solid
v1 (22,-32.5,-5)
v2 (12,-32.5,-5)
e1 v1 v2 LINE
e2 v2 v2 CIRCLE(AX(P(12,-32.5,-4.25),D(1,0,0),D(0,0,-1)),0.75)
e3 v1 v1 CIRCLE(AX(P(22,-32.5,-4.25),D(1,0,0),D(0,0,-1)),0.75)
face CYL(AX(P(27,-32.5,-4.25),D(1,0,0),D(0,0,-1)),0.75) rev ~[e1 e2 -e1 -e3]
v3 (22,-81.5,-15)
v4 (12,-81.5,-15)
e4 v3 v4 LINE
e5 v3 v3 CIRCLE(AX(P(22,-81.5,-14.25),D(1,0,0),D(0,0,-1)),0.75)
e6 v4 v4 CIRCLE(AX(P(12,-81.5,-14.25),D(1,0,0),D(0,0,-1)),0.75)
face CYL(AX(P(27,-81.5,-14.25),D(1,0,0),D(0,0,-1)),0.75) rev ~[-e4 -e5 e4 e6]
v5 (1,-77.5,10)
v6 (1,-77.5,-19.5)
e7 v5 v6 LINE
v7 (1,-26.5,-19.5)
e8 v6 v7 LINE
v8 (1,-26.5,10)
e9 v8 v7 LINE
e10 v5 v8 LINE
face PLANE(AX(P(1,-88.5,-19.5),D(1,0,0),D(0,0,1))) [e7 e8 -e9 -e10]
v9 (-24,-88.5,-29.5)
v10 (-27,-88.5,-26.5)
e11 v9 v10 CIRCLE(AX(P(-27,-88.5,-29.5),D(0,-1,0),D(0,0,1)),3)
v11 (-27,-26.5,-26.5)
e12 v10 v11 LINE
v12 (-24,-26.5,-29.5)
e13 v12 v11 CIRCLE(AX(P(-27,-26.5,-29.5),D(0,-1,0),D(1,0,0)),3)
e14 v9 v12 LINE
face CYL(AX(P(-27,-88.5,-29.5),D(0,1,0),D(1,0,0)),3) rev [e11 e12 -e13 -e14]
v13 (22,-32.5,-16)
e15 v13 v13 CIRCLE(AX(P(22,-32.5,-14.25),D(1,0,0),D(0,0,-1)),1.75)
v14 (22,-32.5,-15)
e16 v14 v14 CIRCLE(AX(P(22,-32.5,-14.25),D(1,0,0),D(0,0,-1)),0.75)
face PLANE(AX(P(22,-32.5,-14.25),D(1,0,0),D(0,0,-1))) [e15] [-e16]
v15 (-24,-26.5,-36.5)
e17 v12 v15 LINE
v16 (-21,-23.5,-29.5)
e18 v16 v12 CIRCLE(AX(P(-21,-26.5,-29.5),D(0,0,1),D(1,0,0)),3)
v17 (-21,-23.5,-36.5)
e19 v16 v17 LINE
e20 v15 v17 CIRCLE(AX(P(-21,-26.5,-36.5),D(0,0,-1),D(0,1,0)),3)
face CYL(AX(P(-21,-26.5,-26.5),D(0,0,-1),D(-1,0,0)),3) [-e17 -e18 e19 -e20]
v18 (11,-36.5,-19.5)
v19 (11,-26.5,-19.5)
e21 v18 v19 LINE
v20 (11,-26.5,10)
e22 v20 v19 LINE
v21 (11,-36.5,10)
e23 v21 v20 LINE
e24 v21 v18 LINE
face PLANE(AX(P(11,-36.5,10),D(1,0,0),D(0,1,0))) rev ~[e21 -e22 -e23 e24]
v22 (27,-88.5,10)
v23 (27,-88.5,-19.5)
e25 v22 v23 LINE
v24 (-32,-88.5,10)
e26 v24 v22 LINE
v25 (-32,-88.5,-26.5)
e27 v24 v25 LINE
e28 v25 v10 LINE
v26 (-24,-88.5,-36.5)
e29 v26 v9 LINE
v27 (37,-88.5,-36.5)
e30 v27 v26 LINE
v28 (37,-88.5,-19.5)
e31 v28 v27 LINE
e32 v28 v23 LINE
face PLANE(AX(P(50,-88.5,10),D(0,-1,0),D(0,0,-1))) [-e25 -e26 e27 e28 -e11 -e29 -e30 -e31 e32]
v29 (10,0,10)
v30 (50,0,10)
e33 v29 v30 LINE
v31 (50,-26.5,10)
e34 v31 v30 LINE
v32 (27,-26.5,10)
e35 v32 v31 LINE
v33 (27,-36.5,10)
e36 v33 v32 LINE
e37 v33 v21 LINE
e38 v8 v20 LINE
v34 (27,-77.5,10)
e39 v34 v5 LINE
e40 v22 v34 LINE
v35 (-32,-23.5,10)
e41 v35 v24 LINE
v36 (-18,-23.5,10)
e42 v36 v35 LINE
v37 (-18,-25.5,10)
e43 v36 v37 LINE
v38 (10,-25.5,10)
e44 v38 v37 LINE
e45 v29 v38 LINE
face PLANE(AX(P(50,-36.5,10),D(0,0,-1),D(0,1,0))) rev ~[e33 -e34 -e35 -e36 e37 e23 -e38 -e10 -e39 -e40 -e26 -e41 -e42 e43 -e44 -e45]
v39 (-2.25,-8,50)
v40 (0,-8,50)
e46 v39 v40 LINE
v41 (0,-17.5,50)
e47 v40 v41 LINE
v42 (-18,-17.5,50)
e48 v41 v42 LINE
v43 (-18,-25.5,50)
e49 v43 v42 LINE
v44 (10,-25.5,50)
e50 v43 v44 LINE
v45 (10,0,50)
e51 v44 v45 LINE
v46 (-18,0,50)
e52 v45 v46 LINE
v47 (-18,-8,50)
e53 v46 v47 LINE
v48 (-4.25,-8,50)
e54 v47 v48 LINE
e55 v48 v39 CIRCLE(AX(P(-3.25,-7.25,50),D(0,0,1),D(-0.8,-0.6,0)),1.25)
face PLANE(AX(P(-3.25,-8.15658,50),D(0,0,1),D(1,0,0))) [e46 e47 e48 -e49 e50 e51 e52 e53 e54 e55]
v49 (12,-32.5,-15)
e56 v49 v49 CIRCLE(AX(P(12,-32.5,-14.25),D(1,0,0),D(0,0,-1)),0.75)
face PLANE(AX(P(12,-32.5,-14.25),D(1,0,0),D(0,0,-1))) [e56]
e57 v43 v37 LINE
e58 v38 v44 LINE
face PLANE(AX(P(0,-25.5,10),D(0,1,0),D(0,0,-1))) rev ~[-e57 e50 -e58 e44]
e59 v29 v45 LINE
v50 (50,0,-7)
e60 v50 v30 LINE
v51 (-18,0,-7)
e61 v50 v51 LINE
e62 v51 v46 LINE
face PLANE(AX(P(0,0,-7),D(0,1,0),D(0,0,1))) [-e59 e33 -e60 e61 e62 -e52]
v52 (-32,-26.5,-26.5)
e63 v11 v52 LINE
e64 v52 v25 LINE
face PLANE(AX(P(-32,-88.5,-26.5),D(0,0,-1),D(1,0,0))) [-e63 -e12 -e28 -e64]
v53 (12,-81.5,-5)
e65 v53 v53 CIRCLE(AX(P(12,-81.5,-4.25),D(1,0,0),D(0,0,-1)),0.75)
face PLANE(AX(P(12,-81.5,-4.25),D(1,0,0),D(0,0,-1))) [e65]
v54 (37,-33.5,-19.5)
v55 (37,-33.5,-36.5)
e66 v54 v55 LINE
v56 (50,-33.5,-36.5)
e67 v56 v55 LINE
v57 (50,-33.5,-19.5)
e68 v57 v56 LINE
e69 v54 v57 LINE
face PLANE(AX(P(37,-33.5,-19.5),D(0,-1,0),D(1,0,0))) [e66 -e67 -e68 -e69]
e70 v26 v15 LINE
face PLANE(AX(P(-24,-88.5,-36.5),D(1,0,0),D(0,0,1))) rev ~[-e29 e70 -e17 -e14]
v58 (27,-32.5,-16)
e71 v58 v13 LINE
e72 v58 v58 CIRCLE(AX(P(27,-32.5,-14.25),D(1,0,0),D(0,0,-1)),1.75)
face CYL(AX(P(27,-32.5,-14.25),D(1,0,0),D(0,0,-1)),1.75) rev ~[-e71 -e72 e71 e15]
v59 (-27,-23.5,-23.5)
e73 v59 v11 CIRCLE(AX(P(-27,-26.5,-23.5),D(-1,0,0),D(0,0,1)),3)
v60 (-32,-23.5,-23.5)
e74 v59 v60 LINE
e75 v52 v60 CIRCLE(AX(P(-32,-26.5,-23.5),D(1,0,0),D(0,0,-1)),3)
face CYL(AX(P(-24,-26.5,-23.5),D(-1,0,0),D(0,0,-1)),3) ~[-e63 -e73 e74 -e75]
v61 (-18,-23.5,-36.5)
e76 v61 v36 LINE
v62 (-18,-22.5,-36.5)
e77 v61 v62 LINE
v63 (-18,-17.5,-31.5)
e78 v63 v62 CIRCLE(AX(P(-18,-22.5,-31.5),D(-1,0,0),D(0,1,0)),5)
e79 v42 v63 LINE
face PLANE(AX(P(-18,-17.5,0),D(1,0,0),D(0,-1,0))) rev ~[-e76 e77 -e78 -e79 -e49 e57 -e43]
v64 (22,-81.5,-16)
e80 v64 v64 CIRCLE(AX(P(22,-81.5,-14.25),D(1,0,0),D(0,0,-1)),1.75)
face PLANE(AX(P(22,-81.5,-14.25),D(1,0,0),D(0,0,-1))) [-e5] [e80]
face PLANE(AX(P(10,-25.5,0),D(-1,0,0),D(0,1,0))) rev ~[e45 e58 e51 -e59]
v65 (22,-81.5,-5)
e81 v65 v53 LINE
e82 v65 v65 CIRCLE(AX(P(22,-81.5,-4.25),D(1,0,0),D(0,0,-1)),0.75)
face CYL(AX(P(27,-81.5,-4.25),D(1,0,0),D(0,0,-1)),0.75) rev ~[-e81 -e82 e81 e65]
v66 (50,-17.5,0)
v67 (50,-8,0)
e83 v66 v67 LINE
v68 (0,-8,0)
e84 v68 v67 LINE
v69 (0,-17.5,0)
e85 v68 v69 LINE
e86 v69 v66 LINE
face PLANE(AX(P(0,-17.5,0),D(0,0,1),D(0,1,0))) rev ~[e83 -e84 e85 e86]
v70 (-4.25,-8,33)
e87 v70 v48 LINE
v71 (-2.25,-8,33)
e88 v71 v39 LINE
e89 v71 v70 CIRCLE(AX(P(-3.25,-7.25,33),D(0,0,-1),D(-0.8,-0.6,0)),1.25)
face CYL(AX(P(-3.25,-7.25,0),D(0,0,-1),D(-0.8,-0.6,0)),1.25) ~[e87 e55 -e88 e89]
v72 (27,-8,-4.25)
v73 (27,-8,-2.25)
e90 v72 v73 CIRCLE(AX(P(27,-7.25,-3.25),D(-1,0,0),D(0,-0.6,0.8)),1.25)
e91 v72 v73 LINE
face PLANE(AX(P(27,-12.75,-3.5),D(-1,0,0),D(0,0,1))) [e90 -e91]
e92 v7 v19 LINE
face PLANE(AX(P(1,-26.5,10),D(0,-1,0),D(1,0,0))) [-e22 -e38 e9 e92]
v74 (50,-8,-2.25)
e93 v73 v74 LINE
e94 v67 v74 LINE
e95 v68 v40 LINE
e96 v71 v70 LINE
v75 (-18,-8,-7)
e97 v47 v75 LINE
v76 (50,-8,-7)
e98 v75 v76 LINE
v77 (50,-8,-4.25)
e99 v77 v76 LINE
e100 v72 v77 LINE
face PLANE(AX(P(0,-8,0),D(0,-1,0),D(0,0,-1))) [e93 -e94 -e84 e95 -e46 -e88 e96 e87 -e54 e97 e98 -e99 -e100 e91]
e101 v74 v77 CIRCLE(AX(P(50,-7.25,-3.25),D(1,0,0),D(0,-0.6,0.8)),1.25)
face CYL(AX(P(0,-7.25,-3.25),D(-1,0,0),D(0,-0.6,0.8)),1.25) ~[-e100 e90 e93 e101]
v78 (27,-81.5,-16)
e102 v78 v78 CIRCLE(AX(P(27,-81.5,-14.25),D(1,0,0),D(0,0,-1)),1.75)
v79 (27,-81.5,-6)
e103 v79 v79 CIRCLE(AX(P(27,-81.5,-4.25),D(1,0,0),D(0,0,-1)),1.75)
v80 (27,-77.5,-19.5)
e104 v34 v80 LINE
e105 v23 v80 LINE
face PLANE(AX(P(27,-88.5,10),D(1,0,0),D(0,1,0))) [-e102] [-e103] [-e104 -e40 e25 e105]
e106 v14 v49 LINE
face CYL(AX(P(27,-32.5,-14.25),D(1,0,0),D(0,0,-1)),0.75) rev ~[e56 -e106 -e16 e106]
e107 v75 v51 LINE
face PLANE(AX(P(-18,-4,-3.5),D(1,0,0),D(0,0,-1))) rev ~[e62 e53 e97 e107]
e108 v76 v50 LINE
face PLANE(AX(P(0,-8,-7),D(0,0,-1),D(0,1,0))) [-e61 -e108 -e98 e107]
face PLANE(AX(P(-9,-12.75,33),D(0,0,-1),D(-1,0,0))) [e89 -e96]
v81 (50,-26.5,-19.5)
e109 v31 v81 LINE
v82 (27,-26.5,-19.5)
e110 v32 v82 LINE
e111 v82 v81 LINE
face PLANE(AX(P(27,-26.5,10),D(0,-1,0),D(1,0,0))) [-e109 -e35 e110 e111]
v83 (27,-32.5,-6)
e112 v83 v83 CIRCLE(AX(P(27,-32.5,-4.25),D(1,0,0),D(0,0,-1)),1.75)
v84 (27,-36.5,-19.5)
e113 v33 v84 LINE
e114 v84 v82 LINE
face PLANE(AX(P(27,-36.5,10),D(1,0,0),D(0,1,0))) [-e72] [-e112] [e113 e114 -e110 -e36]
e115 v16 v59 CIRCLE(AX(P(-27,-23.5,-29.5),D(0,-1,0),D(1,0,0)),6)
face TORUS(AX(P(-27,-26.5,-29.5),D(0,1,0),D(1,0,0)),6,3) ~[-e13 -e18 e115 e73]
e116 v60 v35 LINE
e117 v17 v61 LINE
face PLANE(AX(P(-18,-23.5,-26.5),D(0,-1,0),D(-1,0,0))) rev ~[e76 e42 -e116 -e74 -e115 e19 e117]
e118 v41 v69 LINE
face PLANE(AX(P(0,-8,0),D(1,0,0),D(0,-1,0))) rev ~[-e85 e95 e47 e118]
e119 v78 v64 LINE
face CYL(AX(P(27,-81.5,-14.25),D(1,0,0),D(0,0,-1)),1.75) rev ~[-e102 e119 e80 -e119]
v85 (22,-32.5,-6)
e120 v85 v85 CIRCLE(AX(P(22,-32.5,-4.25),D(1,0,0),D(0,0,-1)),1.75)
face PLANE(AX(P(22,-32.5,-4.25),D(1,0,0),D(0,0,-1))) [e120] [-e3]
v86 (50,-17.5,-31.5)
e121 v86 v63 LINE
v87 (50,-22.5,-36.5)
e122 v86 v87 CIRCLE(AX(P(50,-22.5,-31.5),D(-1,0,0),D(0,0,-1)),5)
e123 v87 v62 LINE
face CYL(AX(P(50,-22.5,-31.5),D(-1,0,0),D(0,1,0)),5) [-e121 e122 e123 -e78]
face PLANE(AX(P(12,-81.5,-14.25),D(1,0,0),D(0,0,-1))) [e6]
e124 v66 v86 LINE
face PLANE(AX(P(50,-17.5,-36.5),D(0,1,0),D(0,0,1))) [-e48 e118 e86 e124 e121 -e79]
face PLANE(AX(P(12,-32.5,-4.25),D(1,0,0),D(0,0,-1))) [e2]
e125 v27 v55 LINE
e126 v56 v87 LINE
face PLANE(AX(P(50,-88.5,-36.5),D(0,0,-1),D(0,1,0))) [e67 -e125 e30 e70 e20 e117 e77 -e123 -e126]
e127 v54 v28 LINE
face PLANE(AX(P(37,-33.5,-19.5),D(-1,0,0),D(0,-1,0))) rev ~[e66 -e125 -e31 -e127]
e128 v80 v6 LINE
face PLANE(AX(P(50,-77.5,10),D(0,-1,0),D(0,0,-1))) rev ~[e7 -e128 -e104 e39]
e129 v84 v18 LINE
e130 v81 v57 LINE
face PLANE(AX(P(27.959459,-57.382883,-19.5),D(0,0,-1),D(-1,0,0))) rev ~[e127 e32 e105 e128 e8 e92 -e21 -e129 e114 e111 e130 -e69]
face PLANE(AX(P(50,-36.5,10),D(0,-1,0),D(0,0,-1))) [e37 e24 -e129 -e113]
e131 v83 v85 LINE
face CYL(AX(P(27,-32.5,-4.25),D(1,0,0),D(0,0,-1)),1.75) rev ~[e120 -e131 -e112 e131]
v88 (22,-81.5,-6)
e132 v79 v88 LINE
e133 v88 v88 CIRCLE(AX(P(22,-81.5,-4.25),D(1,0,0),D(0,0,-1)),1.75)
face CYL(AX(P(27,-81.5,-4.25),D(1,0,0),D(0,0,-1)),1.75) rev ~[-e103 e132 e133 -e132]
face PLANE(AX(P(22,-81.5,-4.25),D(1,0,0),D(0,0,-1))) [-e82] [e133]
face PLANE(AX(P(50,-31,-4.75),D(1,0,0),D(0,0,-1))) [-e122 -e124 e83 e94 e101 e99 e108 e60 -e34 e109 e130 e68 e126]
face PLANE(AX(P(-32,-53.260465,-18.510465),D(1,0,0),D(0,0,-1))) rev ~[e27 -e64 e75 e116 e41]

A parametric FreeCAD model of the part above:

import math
import FreeCAD as App
import Part
import Sketcher
Q = App.Units.Quantity


def edges_at(feature, points):
    """Names of the edges that pass closest to the given points."""
    edges = feature.Shape.Edges
    near = lambda p: min(range(len(edges)), key=lambda i: edges[i].distToShape(Part.Vertex(*p))[0])
    return sorted({f"Edge{near(p) + 1}" for p in points})

doc = App.newDocument("Part")
body = doc.addObject("PartDesign::Body", "Body")

# Sketch on XY plane
sketch1 = body.newObject("Sketcher::SketchObject", "Sketch")
sketch1.AttachmentSupport = (doc.getObject("XY_Plane"), [""])
sketch1.MapMode = "FlatFace"
sketch1.addGeometry([
    Part.ArcOfCircle(Part.Circle(App.Vector(-3.2, -7.2, 0), App.Vector(0, 0, 1), 1.2), math.radians(-143), math.radians(-37)),  # 0
    Part.LineSegment(App.Vector(-2.2, -8, 0), App.Vector(0, -8, 0)),  # 1
    Part.LineSegment(App.Vector(0, -8, 0), App.Vector(0, -17.5, 0)),  # 2
    Part.LineSegment(App.Vector(0, -17.5, 0), App.Vector(-18, -17.5, 0)),  # 3
    Part.LineSegment(App.Vector(-18, -17.5, 0), App.Vector(-18, -25.5, 0)),  # 4
    Part.LineSegment(App.Vector(-18, -25.5, 0), App.Vector(10, -25.5, 0)),  # 5
    Part.LineSegment(App.Vector(10, -25.5, 0), App.Vector(10, 0, 0)),  # 6
    Part.LineSegment(App.Vector(10, 0, 0), App.Vector(-18, 0, 0)),  # 7
    Part.LineSegment(App.Vector(-18, 0, 0), App.Vector(-18, -8, 0)),  # 8
    Part.LineSegment(App.Vector(-18, -8, 0), App.Vector(-4.2, -8, 0)),  # 9
], False)
sketch1.addConstraint([
    Sketcher.Constraint("Coincident", 0, 2, 1, 1),
    Sketcher.Constraint("Coincident", 1, 2, 2, 1),
    Sketcher.Constraint("Coincident", 2, 2, 3, 1),
    Sketcher.Constraint("Coincident", 3, 2, 4, 1),
    Sketcher.Constraint("Coincident", 4, 2, 5, 1),
    Sketcher.Constraint("Coincident", 5, 2, 6, 1),
    Sketcher.Constraint("Coincident", 6, 2, 7, 1),
    Sketcher.Constraint("Coincident", 7, 2, 8, 1),
    Sketcher.Constraint("Coincident", 8, 2, 9, 1),
    Sketcher.Constraint("Coincident", 9, 2, 0, 1),
    Sketcher.Constraint("Horizontal", 1),
    Sketcher.Constraint("Vertical", 2),
    Sketcher.Constraint("Horizontal", 3),
    Sketcher.Constraint("Vertical", 4),
    Sketcher.Constraint("Horizontal", 5),
    Sketcher.Constraint("Vertical", 6),
    Sketcher.Constraint("Horizontal", 7),
    Sketcher.Constraint("Vertical", 8),
    Sketcher.Constraint("Horizontal", 9),
    Sketcher.Constraint("PointOnObject", 1, 2, -2),
    Sketcher.Constraint("PointOnObject", 6, 2, -1),
    Sketcher.Constraint("Horizontal", 1, 2, 8, 2),
    Sketcher.Constraint("Vertical", 4, 2, 7, 2),
    Sketcher.Constraint("Equal", 4, 8),
    Sketcher.Constraint("DistanceX", 3, 2, 3, 1, Q("18 mm")),
    Sketcher.Constraint("DistanceX", 5, 1, 5, 2, Q("28 mm")),
    Sketcher.Constraint("DistanceY", 4, 2, 4, 1, Q("8 mm")),
    Sketcher.Constraint("Radius", 0, Q("1.25 mm")),
    Sketcher.Constraint("DistanceY", 2, 2, 2, 1, Q("9.5 mm")),
    Sketcher.Constraint("DistanceX", 0, 3, 0, 2, Q("1 mm")),
    Sketcher.Constraint("DistanceX", 1, 1, 1, 2, Q("2.25 mm")),
])
pad1 = body.newObject("PartDesign::Pad", "Pad")
pad1.Profile = sketch1
pad1.Length = 50

# Sketch on YZ plane
sketch2 = body.newObject("Sketcher::SketchObject", "Sketch001")
sketch2.AttachmentSupport = (doc.getObject("YZ_Plane"), [""])
sketch2.MapMode = "FlatFace"
sketch2.addGeometry([
    Part.LineSegment(App.Vector(0, -7, 0), App.Vector(0, 10, 0)),  # 0
    Part.LineSegment(App.Vector(0, 10, 0), App.Vector(-25.5, 10, 0)),  # 1
    Part.LineSegment(App.Vector(-25.5, 10, 0), App.Vector(-25.5, -7, 0)),  # 2
    Part.LineSegment(App.Vector(-25.5, -7, 0), App.Vector(-17.5, -7, 0)),  # 3
    Part.LineSegment(App.Vector(-17.5, -7, 0), App.Vector(-17.5, 0, 0)),  # 4
    Part.LineSegment(App.Vector(-17.5, 0, 0), App.Vector(-8, 0, 0)),  # 5
    Part.LineSegment(App.Vector(-8, 0, 0), App.Vector(-8, -2.2, 0)),  # 6
    Part.ArcOfCircle(Part.Circle(App.Vector(-7.2, -3.2, 0), App.Vector(0, 0, 1), 1.2), math.radians(127), math.radians(233)),  # 7
    Part.LineSegment(App.Vector(-8, -4.2, 0), App.Vector(-8, -7, 0)),  # 8
    Part.LineSegment(App.Vector(-8, -7, 0), App.Vector(0, -7, 0)),  # 9
], False)
sketch2.addConstraint([
    Sketcher.Constraint("Coincident", 0, 2, 1, 1),
    Sketcher.Constraint("Coincident", 1, 2, 2, 1),
    Sketcher.Constraint("Coincident", 2, 2, 3, 1),
    Sketcher.Constraint("Coincident", 3, 2, 4, 1),
    Sketcher.Constraint("Coincident", 4, 2, 5, 1),
    Sketcher.Constraint("Coincident", 5, 2, 6, 1),
    Sketcher.Constraint("Coincident", 6, 2, 7, 1),
    Sketcher.Constraint("Coincident", 7, 2, 8, 1),
    Sketcher.Constraint("Coincident", 8, 2, 9, 1),
    Sketcher.Constraint("Coincident", 9, 2, 0, 1),
    Sketcher.Constraint("Vertical", 0),
    Sketcher.Constraint("Horizontal", 1),
    Sketcher.Constraint("Vertical", 2),
    Sketcher.Constraint("Horizontal", 3),
    Sketcher.Constraint("Vertical", 4),
    Sketcher.Constraint("Horizontal", 5),
    Sketcher.Constraint("Vertical", 6),
    Sketcher.Constraint("Vertical", 8),
    Sketcher.Constraint("Horizontal", 9),
    Sketcher.Constraint("PointOnObject", 0, 2, -2),
    Sketcher.Constraint("PointOnObject", 4, 2, -1),
    Sketcher.Constraint("Horizontal", 3, 2, 8, 2),
    Sketcher.Constraint("Vertical", 6, 2, 7, 2),
    Sketcher.Constraint("Equal", 3, 9),
    Sketcher.Constraint("DistanceX", 3, 1, 3, 2, Q("8 mm")),
    Sketcher.Constraint("DistanceY", 0, 1, 0, 2, Q("17 mm")),
    Sketcher.Constraint("DistanceY", 4, 1, 4, 2, Q("7 mm")),
    Sketcher.Constraint("Radius", 7, Q("1.25 mm")),
    Sketcher.Constraint("DistanceX", 1, 2, 1, 1, Q("25.5 mm")),
    Sketcher.Constraint("DistanceY", 7, 3, 6, 2, Q("1 mm")),
    Sketcher.Constraint("DistanceY", 6, 2, 6, 1, Q("2.25 mm")),
])
pad2 = body.newObject("PartDesign::Pad", "Pad001")
pad2.Profile = sketch2
pad2.Length = 50

# Sketch on YZ plane
sketch3 = body.newObject("Sketcher::SketchObject", "Sketch002")
sketch3.AttachmentSupport = (doc.getObject("YZ_Plane"), [""])
sketch3.MapMode = "FlatFace"
sketch3.addGeometry([
    Part.LineSegment(App.Vector(0, -7, 0), App.Vector(0, 0, 0)),  # 0
    Part.LineSegment(App.Vector(0, 0, 0), App.Vector(-8, 0, 0)),  # 1
    Part.LineSegment(App.Vector(-8, 0, 0), App.Vector(-8, -7, 0)),  # 2
    Part.LineSegment(App.Vector(-8, -7, 0), App.Vector(0, -7, 0)),  # 3
    Part.LineSegment(App.Vector(-18, 0, 0), App.Vector(-26, 0, 0)),  # 4
    Part.LineSegment(App.Vector(-26, 0, 0), App.Vector(-26, -7, 0)),  # 5
    Part.LineSegment(App.Vector(-26, -7, 0), App.Vector(-18, -7, 0)),  # 6
    Part.LineSegment(App.Vector(-18, -7, 0), App.Vector(-18, 0, 0)),  # 7
], False)
sketch3.addConstraint([
    Sketcher.Constraint("Coincident", 0, 2, 1, 1),
    Sketcher.Constraint("Coincident", 1, 2, 2, 1),
    Sketcher.Constraint("Coincident", 2, 2, 3, 1),
    Sketcher.Constraint("Coincident", 3, 2, 0, 1),
    Sketcher.Constraint("Coincident", 4, 2, 5, 1),
    Sketcher.Constraint("Coincident", 5, 2, 6, 1),
    Sketcher.Constraint("Coincident", 6, 2, 7, 1),
    Sketcher.Constraint("Coincident", 7, 2, 4, 1),
    Sketcher.Constraint("Vertical", 0),
    Sketcher.Constraint("Horizontal", 1),
    Sketcher.Constraint("Vertical", 2),
    Sketcher.Constraint("Horizontal", 3),
    Sketcher.Constraint("Horizontal", 4),
    Sketcher.Constraint("Vertical", 5),
    Sketcher.Constraint("Horizontal", 6),
    Sketcher.Constraint("Vertical", 7),
    Sketcher.Constraint("Coincident", 0, 2, -1, 1),
    Sketcher.Constraint("PointOnObject", 4, 2, -1),
    Sketcher.Constraint("Horizontal", 3, 2, 5, 2),
    Sketcher.Constraint("Equal", 3, 4),
    Sketcher.Constraint("DistanceX", 1, 2, 1, 1, Q("8 mm")),
    Sketcher.Constraint("DistanceY", 0, 1, 0, 2, Q("7 mm")),
    Sketcher.Constraint("DistanceX", 4, 2, -1, 1, Q("25.5 mm")),
])
pad3 = body.newObject("PartDesign::Pad", "Pad002")
pad3.Profile = sketch3
pad3.Length = 18
pad3.Reversed = True

# Sketch on YZ plane
sketch4 = body.newObject("Sketcher::SketchObject", "Sketch003")
sketch4.AttachmentSupport = (doc.getObject("YZ_Plane"), [""])
sketch4.MapMode = "FlatFace"
sketch4.AttachmentOffset = App.Placement(App.Vector(0, 0, 50), App.Rotation())
sketch4.addGeometry([
    Part.LineSegment(App.Vector(-18, -36, 0), App.Vector(-18, 10, 0)),
    Part.LineSegment(App.Vector(-18, 10, 0), App.Vector(-88, 10, 0)),
    Part.LineSegment(App.Vector(-88, 10, 0), App.Vector(-88, -36, 0)),
    Part.LineSegment(App.Vector(-88, -36, 0), App.Vector(-18, -36, 0)),
], False)
sketch4.addConstraint([
    Sketcher.Constraint("Coincident", 0, 2, 1, 1),
    Sketcher.Constraint("Coincident", 1, 2, 2, 1),
    Sketcher.Constraint("Coincident", 2, 2, 3, 1),
    Sketcher.Constraint("Coincident", 3, 2, 0, 1),
    Sketcher.Constraint("Vertical", 0),
    Sketcher.Constraint("Horizontal", 1),
    Sketcher.Constraint("Vertical", 2),
    Sketcher.Constraint("Horizontal", 3),
    Sketcher.Constraint("DistanceX", 1, 2, 1, 1, Q("71 mm")),
    Sketcher.Constraint("DistanceY", 0, 1, 0, 2, Q("46.5 mm")),
    Sketcher.Constraint("DistanceY", -1, 1, 0, 2, Q("10 mm")),
    Sketcher.Constraint("DistanceX", 0, 2, -1, 1, Q("17.5 mm")),
])
pad4 = body.newObject("PartDesign::Pad", "Pad003")
pad4.Profile = sketch4
pad4.Length = 82
pad4.Reversed = True
doc.recompute()

fillet = body.newObject("PartDesign::Fillet", "Fillet")
fillet.Base = (pad4, edges_at(pad4, [(-32, -17.5, -13.25), (-32, -53, -36.5), (9, -17.5, -36.5)]))
fillet.Radius = 5

# Sketch on XZ plane
sketch5 = body.newObject("Sketcher::SketchObject", "Sketch004")
sketch5.AttachmentSupport = (doc.getObject("XZ_Plane"), [""])
sketch5.MapMode = "FlatFace"
sketch5.AttachmentOffset = App.Placement(App.Vector(0, 0, 88.5), App.Rotation())
sketch5.addGeometry([
    Part.LineSegment(App.Vector(1, 10, 0), App.Vector(1, -20, 0)),
    Part.LineSegment(App.Vector(1, -20, 0), App.Vector(50, -20, 0)),
    Part.LineSegment(App.Vector(50, -20, 0), App.Vector(50, 10, 0)),
    Part.LineSegment(App.Vector(50, 10, 0), App.Vector(1, 10, 0)),
], False)
sketch5.addConstraint([
    Sketcher.Constraint("Coincident", 0, 2, 1, 1),
    Sketcher.Constraint("Coincident", 1, 2, 2, 1),
    Sketcher.Constraint("Coincident", 2, 2, 3, 1),
    Sketcher.Constraint("Coincident", 3, 2, 0, 1),
    Sketcher.Constraint("Vertical", 0),
    Sketcher.Constraint("Horizontal", 1),
    Sketcher.Constraint("Vertical", 2),
    Sketcher.Constraint("Horizontal", 3),
    Sketcher.Constraint("DistanceX", 1, 1, 1, 2, Q("49 mm")),
    Sketcher.Constraint("DistanceY", 0, 2, 0, 1, Q("29.5 mm")),
    Sketcher.Constraint("DistanceX", -1, 1, 0, 2, Q("1 mm")),
    Sketcher.Constraint("DistanceY", -1, 1, 2, 2, Q("10 mm")),
])
pocket1 = body.newObject("PartDesign::Pocket", "Pocket")
pocket1.Profile = sketch5
pocket1.Length = 63

# Sketch on YZ plane
sketch6 = body.newObject("Sketcher::SketchObject", "Sketch005")
sketch6.AttachmentSupport = (doc.getObject("YZ_Plane"), [""])
sketch6.MapMode = "FlatFace"
sketch6.AttachmentOffset = App.Placement(App.Vector(0, 0, 50), App.Rotation())
sketch6.addGeometry([
    Part.LineSegment(App.Vector(-26, 10, 0), App.Vector(-36, 10, 0)),  # 0
    Part.LineSegment(App.Vector(-36, 10, 0), App.Vector(-36, -20, 0)),  # 1
    Part.LineSegment(App.Vector(-36, -20, 0), App.Vector(-26, -20, 0)),  # 2
    Part.LineSegment(App.Vector(-26, -20, 0), App.Vector(-26, 10, 0)),  # 3
    Part.LineSegment(App.Vector(-78, 10, 0), App.Vector(-88, 10, 0)),  # 4
    Part.LineSegment(App.Vector(-88, 10, 0), App.Vector(-88, -20, 0)),  # 5
    Part.LineSegment(App.Vector(-88, -20, 0), App.Vector(-78, -20, 0)),  # 6
    Part.LineSegment(App.Vector(-78, -20, 0), App.Vector(-78, 10, 0)),  # 7
], False)
sketch6.addConstraint([
    Sketcher.Constraint("Coincident", 0, 2, 1, 1),
    Sketcher.Constraint("Coincident", 1, 2, 2, 1),
    Sketcher.Constraint("Coincident", 2, 2, 3, 1),
    Sketcher.Constraint("Coincident", 3, 2, 0, 1),
    Sketcher.Constraint("Coincident", 4, 2, 5, 1),
    Sketcher.Constraint("Coincident", 5, 2, 6, 1),
    Sketcher.Constraint("Coincident", 6, 2, 7, 1),
    Sketcher.Constraint("Coincident", 7, 2, 4, 1),
    Sketcher.Constraint("Horizontal", 0),
    Sketcher.Constraint("Vertical", 1),
    Sketcher.Constraint("Horizontal", 2),
    Sketcher.Constraint("Vertical", 3),
    Sketcher.Constraint("Horizontal", 4),
    Sketcher.Constraint("Vertical", 5),
    Sketcher.Constraint("Horizontal", 6),
    Sketcher.Constraint("Vertical", 7),
    Sketcher.Constraint("Horizontal", 3, 2, 4, 2),
    Sketcher.Constraint("Horizontal", 2, 2, 5, 2),
    Sketcher.Constraint("Equal", 2, 4),
    Sketcher.Constraint("DistanceX", 0, 2, 0, 1, Q("11 mm")),
    Sketcher.Constraint("DistanceY", 1, 2, 1, 1, Q("29.5 mm")),
    Sketcher.Constraint("DistanceY", -1, 1, 0, 2, Q("10 mm")),
    Sketcher.Constraint("DistanceX", 4, 2, 0, 2, Q("52 mm")),
    Sketcher.Constraint("DistanceX", 0, 2, -1, 1, Q("36.5 mm")),
])
pad5 = body.newObject("PartDesign::Pad", "Pad004")
pad5.Profile = sketch6
pad5.Length = 49
pad5.Reversed = True

# Sketch on XY plane
sketch7 = body.newObject("Sketcher::SketchObject", "Sketch006")
sketch7.AttachmentSupport = (doc.getObject("XY_Plane"), [""])
sketch7.MapMode = "FlatFace"
sketch7.AttachmentOffset = App.Placement(App.Vector(0, 0, 10), App.Rotation())
sketch7.addGeometry([
    Part.LineSegment(App.Vector(27, -36, 0), App.Vector(1, -36, 0)),  # 0
    Part.LineSegment(App.Vector(1, -36, 0), App.Vector(1, -78, 0)),  # 1
    Part.LineSegment(App.Vector(1, -78, 0), App.Vector(27, -78, 0)),  # 2
    Part.LineSegment(App.Vector(27, -78, 0), App.Vector(27, -88, 0)),  # 3
    Part.LineSegment(App.Vector(27, -88, 0), App.Vector(50, -88, 0)),  # 4
    Part.LineSegment(App.Vector(50, -88, 0), App.Vector(50, -26, 0)),  # 5
    Part.LineSegment(App.Vector(50, -26, 0), App.Vector(27, -26, 0)),  # 6
    Part.LineSegment(App.Vector(27, -26, 0), App.Vector(27, -36, 0)),  # 7
], False)
sketch7.addConstraint([
    Sketcher.Constraint("Coincident", 0, 2, 1, 1),
    Sketcher.Constraint("Coincident", 1, 2, 2, 1),
    Sketcher.Constraint("Coincident", 2, 2, 3, 1),
    Sketcher.Constraint("Coincident", 3, 2, 4, 1),
    Sketcher.Constraint("Coincident", 4, 2, 5, 1),
    Sketcher.Constraint("Coincident", 5, 2, 6, 1),
    Sketcher.Constraint("Coincident", 6, 2, 7, 1),
    Sketcher.Constraint("Coincident", 7, 2, 0, 1),
    Sketcher.Constraint("Horizontal", 0),
    Sketcher.Constraint("Vertical", 1),
    Sketcher.Constraint("Horizontal", 2),
    Sketcher.Constraint("Vertical", 3),
    Sketcher.Constraint("Horizontal", 4),
    Sketcher.Constraint("Vertical", 5),
    Sketcher.Constraint("Horizontal", 6),
    Sketcher.Constraint("Vertical", 7),
    Sketcher.Constraint("Vertical", 3, 2, 6, 2),
    Sketcher.Constraint("DistanceX", 0, 2, 0, 1, Q("26 mm")),
    Sketcher.Constraint("DistanceX", 4, 1, 4, 2, Q("23 mm")),
    Sketcher.Constraint("DistanceY", 1, 2, 1, 1, Q("41 mm")),
    Sketcher.Constraint("DistanceY", 3, 2, 3, 1, Q("11 mm")),
    Sketcher.Constraint("DistanceY", 5, 1, 5, 2, Q("62 mm")),
    Sketcher.Constraint("DistanceX", -1, 1, 0, 2, Q("1 mm")),
    Sketcher.Constraint("DistanceY", 0, 2, -1, 1, Q("36.5 mm")),
])
pocket2 = body.newObject("PartDesign::Pocket", "Pocket001")
pocket2.Profile = sketch7
pocket2.Length = 29.5

# Sketch on YZ plane
sketch8 = body.newObject("Sketcher::SketchObject", "Sketch007")
sketch8.AttachmentSupport = (doc.getObject("YZ_Plane"), [""])
sketch8.MapMode = "FlatFace"
sketch8.AttachmentOffset = App.Placement(App.Vector(0, 0, 27), App.Rotation())
sketch8.addGeometry([
    Part.Circle(App.Vector(-81.5, -4.2, 0), App.Vector(0, 0, 1), 1.8),
    Part.Circle(App.Vector(-81.5, -14.2, 0), App.Vector(0, 0, 1), 1.8),
    Part.Circle(App.Vector(-32.5, -14.2, 0), App.Vector(0, 0, 1), 1.8),
    Part.Circle(App.Vector(-32.5, -4.2, 0), App.Vector(0, 0, 1), 1.8),
], False)
sketch8.addConstraint([
    Sketcher.Constraint("Equal", 0, 1),
    Sketcher.Constraint("Equal", 1, 2),
    Sketcher.Constraint("Equal", 2, 3),
    Sketcher.Constraint("Horizontal", 1, 3, 2, 3),
    Sketcher.Constraint("Horizontal", 0, 3, 3, 3),
    Sketcher.Constraint("Vertical", 0, 3, 1, 3),
    Sketcher.Constraint("Vertical", 2, 3, 3, 3),
    Sketcher.Constraint("Diameter", 0, Q("3.5 mm")),
    Sketcher.Constraint("DistanceY", 1, 3, 0, 3, Q("10 mm")),
    Sketcher.Constraint("DistanceX", 1, 3, 2, 3, Q("49 mm")),
    Sketcher.Constraint("DistanceX", 0, 3, -1, 1, Q("81.5 mm")),
    Sketcher.Constraint("DistanceY", 0, 3, -1, 1, Q("4.25 mm")),
])
pocket3 = body.newObject("PartDesign::Pocket", "Pocket002")
pocket3.Profile = sketch8
pocket3.Length = 5

# Sketch on YZ plane
sketch9 = body.newObject("Sketcher::SketchObject", "Sketch008")
sketch9.AttachmentSupport = (doc.getObject("YZ_Plane"), [""])
sketch9.MapMode = "FlatFace"
sketch9.AttachmentOffset = App.Placement(App.Vector(0, 0, 27), App.Rotation())
sketch9.addGeometry([
    Part.Circle(App.Vector(-81.5, -4.2, 0), App.Vector(0, 0, 1), 0.8),
    Part.Circle(App.Vector(-81.5, -14.2, 0), App.Vector(0, 0, 1), 0.8),
    Part.Circle(App.Vector(-32.5, -14.2, 0), App.Vector(0, 0, 1), 0.8),
    Part.Circle(App.Vector(-32.5, -4.2, 0), App.Vector(0, 0, 1), 0.8),
], False)
sketch9.addConstraint([
    Sketcher.Constraint("Equal", 0, 1),
    Sketcher.Constraint("Equal", 1, 2),
    Sketcher.Constraint("Equal", 2, 3),
    Sketcher.Constraint("Horizontal", 1, 3, 2, 3),
    Sketcher.Constraint("Horizontal", 0, 3, 3, 3),
    Sketcher.Constraint("Vertical", 0, 3, 1, 3),
    Sketcher.Constraint("Vertical", 2, 3, 3, 3),
    Sketcher.Constraint("Diameter", 0, Q("1.5 mm")),
    Sketcher.Constraint("DistanceY", 1, 3, 0, 3, Q("10 mm")),
    Sketcher.Constraint("DistanceX", 1, 3, 2, 3, Q("49 mm")),
    Sketcher.Constraint("DistanceX", 0, 3, -1, 1, Q("81.5 mm")),
    Sketcher.Constraint("DistanceY", 0, 3, -1, 1, Q("4.25 mm")),
])
pocket4 = body.newObject("PartDesign::Pocket", "Pocket003")
pocket4.Profile = sketch9
pocket4.Length = 15

# Sketch on XY plane
sketch10 = body.newObject("Sketcher::SketchObject", "Sketch009")
sketch10.AttachmentSupport = (doc.getObject("XY_Plane"), [""])
sketch10.MapMode = "FlatFace"
sketch10.AttachmentOffset = App.Placement(App.Vector(0, 0, -7), App.Rotation())
sketch10.addGeometry([
    Part.LineSegment(App.Vector(0, -8, 0), App.Vector(0, -18, 0)),
    Part.LineSegment(App.Vector(0, -18, 0), App.Vector(-18, -18, 0)),
    Part.LineSegment(App.Vector(-18, -18, 0), App.Vector(-18, -8, 0)),
    Part.LineSegment(App.Vector(-18, -8, 0), App.Vector(0, -8, 0)),
], False)
sketch10.addConstraint([
    Sketcher.Constraint("Coincident", 0, 2, 1, 1),
    Sketcher.Constraint("Coincident", 1, 2, 2, 1),
    Sketcher.Constraint("Coincident", 2, 2, 3, 1),
    Sketcher.Constraint("Coincident", 3, 2, 0, 1),
    Sketcher.Constraint("Vertical", 0),
    Sketcher.Constraint("Horizontal", 1),
    Sketcher.Constraint("Vertical", 2),
    Sketcher.Constraint("Horizontal", 3),
    Sketcher.Constraint("PointOnObject", 0, 2, -2),
    Sketcher.Constraint("DistanceX", 1, 2, 1, 1, Q("18 mm")),
    Sketcher.Constraint("DistanceY", 0, 2, 0, 1, Q("9.5 mm")),
    Sketcher.Constraint("DistanceY", 2, 2, -1, 1, Q("8 mm")),
])
pocket5 = body.newObject("PartDesign::Pocket", "Pocket004")
pocket5.Profile = sketch10
pocket5.Length = 40
pocket5.Reversed = True

# Sketch on YZ plane
sketch11 = body.newObject("Sketcher::SketchObject", "Sketch010")
sketch11.AttachmentSupport = (doc.getObject("YZ_Plane"), [""])
sketch11.MapMode = "FlatFace"
sketch11.AttachmentOffset = App.Placement(App.Vector(0, 0, -18), App.Rotation())
sketch11.addGeometry([
    Part.LineSegment(App.Vector(-8, -7, 0), App.Vector(-18, -7, 0)),
    Part.LineSegment(App.Vector(-18, -7, 0), App.Vector(-18, 0, 0)),
    Part.LineSegment(App.Vector(-18, 0, 0), App.Vector(-8, 0, 0)),
    Part.LineSegment(App.Vector(-8, 0, 0), App.Vector(-8, -7, 0)),
], False)
sketch11.addConstraint([
    Sketcher.Constraint("Coincident", 0, 2, 1, 1),
    Sketcher.Constraint("Coincident", 1, 2, 2, 1),
    Sketcher.Constraint("Coincident", 2, 2, 3, 1),
    Sketcher.Constraint("Coincident", 3, 2, 0, 1),
    Sketcher.Constraint("Horizontal", 0),
    Sketcher.Constraint("Vertical", 1),
    Sketcher.Constraint("Horizontal", 2),
    Sketcher.Constraint("Vertical", 3),
    Sketcher.Constraint("PointOnObject", 1, 2, -1),
    Sketcher.Constraint("DistanceY", 1, 1, 1, 2, Q("7 mm")),
    Sketcher.Constraint("DistanceX", 0, 2, 0, 1, Q("9.5 mm")),
    Sketcher.Constraint("DistanceX", 2, 2, -1, 1, Q("8 mm")),
])
pocket6 = body.newObject("PartDesign::Pocket", "Pocket005")
pocket6.Profile = sketch11
pocket6.Length = 45
pocket6.Reversed = True

# Sketch on XY plane
sketch12 = body.newObject("Sketcher::SketchObject", "Sketch011")
sketch12.AttachmentSupport = (doc.getObject("XY_Plane"), [""])
sketch12.MapMode = "FlatFace"
sketch12.AttachmentOffset = App.Placement(App.Vector(0, 0, 10), App.Rotation())
sketch12.addGeometry([
    Part.LineSegment(App.Vector(1, -26, 0), App.Vector(1, -36, 0)),
    Part.LineSegment(App.Vector(1, -36, 0), App.Vector(11, -36, 0)),
    Part.LineSegment(App.Vector(11, -36, 0), App.Vector(11, -26, 0)),
    Part.LineSegment(App.Vector(11, -26, 0), App.Vector(1, -26, 0)),
], False)
sketch12.addConstraint([
    Sketcher.Constraint("Coincident", 0, 2, 1, 1),
    Sketcher.Constraint("Coincident", 1, 2, 2, 1),
    Sketcher.Constraint("Coincident", 2, 2, 3, 1),
    Sketcher.Constraint("Coincident", 3, 2, 0, 1),
    Sketcher.Constraint("Vertical", 0),
    Sketcher.Constraint("Horizontal", 1),
    Sketcher.Constraint("Vertical", 2),
    Sketcher.Constraint("Horizontal", 3),
    Sketcher.Constraint("Equal", 3, 0),
    Sketcher.Constraint("DistanceX", 1, 1, 1, 2, Q("10 mm")),
    Sketcher.Constraint("DistanceX", -1, 1, 0, 2, Q("1 mm")),
    Sketcher.Constraint("DistanceY", 0, 2, -1, 1, Q("36.5 mm")),
])
pocket7 = body.newObject("PartDesign::Pocket", "Pocket006")
pocket7.Profile = sketch12
pocket7.Length = 29.5

# Sketch on XY plane
sketch13 = body.newObject("Sketcher::SketchObject", "Sketch012")
sketch13.AttachmentSupport = (doc.getObject("XY_Plane"), [""])
sketch13.MapMode = "FlatFace"
sketch13.AttachmentOffset = App.Placement(App.Vector(0, 0, -19.5), App.Rotation())
sketch13.addGeometry([
    Part.LineSegment(App.Vector(37, -34, 0), App.Vector(37, -88, 0)),
    Part.LineSegment(App.Vector(37, -88, 0), App.Vector(50, -88, 0)),
    Part.LineSegment(App.Vector(50, -88, 0), App.Vector(50, -34, 0)),
    Part.LineSegment(App.Vector(50, -34, 0), App.Vector(37, -34, 0)),
], False)
sketch13.addConstraint([
    Sketcher.Constraint("Coincident", 0, 2, 1, 1),
    Sketcher.Constraint("Coincident", 1, 2, 2, 1),
    Sketcher.Constraint("Coincident", 2, 2, 3, 1),
    Sketcher.Constraint("Coincident", 3, 2, 0, 1),
    Sketcher.Constraint("Vertical", 0),
    Sketcher.Constraint("Horizontal", 1),
    Sketcher.Constraint("Vertical", 2),
    Sketcher.Constraint("Horizontal", 3),
    Sketcher.Constraint("DistanceX", 1, 1, 1, 2, Q("13 mm")),
    Sketcher.Constraint("DistanceY", 0, 2, 0, 1, Q("55 mm")),
    Sketcher.Constraint("DistanceX", -1, 1, 0, 2, Q("37 mm")),
    Sketcher.Constraint("DistanceY", 0, 2, -1, 1, Q("88.5 mm")),
])
pocket8 = body.newObject("PartDesign::Pocket", "Pocket007")
pocket8.Profile = sketch13
pocket8.Type = "ThroughAll"

# Sketch on XZ plane
sketch14 = body.newObject("Sketcher::SketchObject", "Sketch013")
sketch14.AttachmentSupport = (doc.getObject("XZ_Plane"), [""])
sketch14.MapMode = "FlatFace"
sketch14.AttachmentOffset = App.Placement(App.Vector(0, 0, 88.5), App.Rotation())
sketch14.addGeometry([
    Part.LineSegment(App.Vector(-32, -26, 0), App.Vector(-32, -36, 0)),
    Part.LineSegment(App.Vector(-32, -36, 0), App.Vector(-24, -36, 0)),
    Part.LineSegment(App.Vector(-24, -36, 0), App.Vector(-24, -26, 0)),
    Part.LineSegment(App.Vector(-24, -26, 0), App.Vector(-32, -26, 0)),
], False)
sketch14.addConstraint([
    Sketcher.Constraint("Coincident", 0, 2, 1, 1),
    Sketcher.Constraint("Coincident", 1, 2, 2, 1),
    Sketcher.Constraint("Coincident", 2, 2, 3, 1),
    Sketcher.Constraint("Coincident", 3, 2, 0, 1),
    Sketcher.Constraint("Vertical", 0),
    Sketcher.Constraint("Horizontal", 1),
    Sketcher.Constraint("Vertical", 2),
    Sketcher.Constraint("Horizontal", 3),
    Sketcher.Constraint("DistanceX", 1, 1, 1, 2, Q("8 mm")),
    Sketcher.Constraint("DistanceY", 0, 2, 0, 1, Q("10 mm")),
    Sketcher.Constraint("DistanceX", 0, 2, -1, 1, Q("32 mm")),
    Sketcher.Constraint("DistanceY", 0, 2, -1, 1, Q("36.5 mm")),
])
pocket9 = body.newObject("PartDesign::Pocket", "Pocket008")
pocket9.Profile = sketch14
pocket9.Type = "ThroughAll"

# Sketch on YZ plane
sketch15 = body.newObject("Sketcher::SketchObject", "Sketch014")
sketch15.AttachmentSupport = (doc.getObject("YZ_Plane"), [""])
sketch15.MapMode = "FlatFace"
sketch15.AttachmentOffset = App.Placement(App.Vector(0, 0, -32), App.Rotation())
sketch15.addGeometry([
    Part.LineSegment(App.Vector(-18, -36, 0), App.Vector(-24, -36, 0)),
    Part.LineSegment(App.Vector(-24, -36, 0), App.Vector(-24, -26, 0)),
    Part.LineSegment(App.Vector(-24, -26, 0), App.Vector(-18, -26, 0)),
    Part.LineSegment(App.Vector(-18, -26, 0), App.Vector(-18, -36, 0)),
], False)
sketch15.addConstraint([
    Sketcher.Constraint("Coincident", 0, 2, 1, 1),
    Sketcher.Constraint("Coincident", 1, 2, 2, 1),
    Sketcher.Constraint("Coincident", 2, 2, 3, 1),
    Sketcher.Constraint("Coincident", 3, 2, 0, 1),
    Sketcher.Constraint("Horizontal", 0),
    Sketcher.Constraint("Vertical", 1),
    Sketcher.Constraint("Horizontal", 2),
    Sketcher.Constraint("Vertical", 3),
    Sketcher.Constraint("DistanceX", 0, 2, 0, 1, Q("6 mm")),
    Sketcher.Constraint("DistanceY", 1, 1, 1, 2, Q("10 mm")),
    Sketcher.Constraint("DistanceX", 0, 2, -1, 1, Q("23.5 mm")),
    Sketcher.Constraint("DistanceY", 0, 2, -1, 1, Q("36.5 mm")),
])
pocket10 = body.newObject("PartDesign::Pocket", "Pocket009")
pocket10.Profile = sketch15
pocket10.Length = 14
pocket10.Reversed = True

# Sketch on XY plane
sketch16 = body.newObject("Sketcher::SketchObject", "Sketch015")
sketch16.AttachmentSupport = (doc.getObject("XY_Plane"), [""])
sketch16.MapMode = "FlatFace"
sketch16.AttachmentOffset = App.Placement(App.Vector(0, 0, -26.5), App.Rotation())
sketch16.addGeometry([
    Part.LineSegment(App.Vector(-18, -18, 0), App.Vector(-18, -24, 0)),
    Part.LineSegment(App.Vector(-18, -24, 0), App.Vector(-32, -24, 0)),
    Part.LineSegment(App.Vector(-32, -24, 0), App.Vector(-32, -18, 0)),
    Part.LineSegment(App.Vector(-32, -18, 0), App.Vector(-18, -18, 0)),
], False)
sketch16.addConstraint([
    Sketcher.Constraint("Coincident", 0, 2, 1, 1),
    Sketcher.Constraint("Coincident", 1, 2, 2, 1),
    Sketcher.Constraint("Coincident", 2, 2, 3, 1),
    Sketcher.Constraint("Coincident", 3, 2, 0, 1),
    Sketcher.Constraint("Vertical", 0),
    Sketcher.Constraint("Horizontal", 1),
    Sketcher.Constraint("Vertical", 2),
    Sketcher.Constraint("Horizontal", 3),
    Sketcher.Constraint("DistanceX", 1, 2, 1, 1, Q("14 mm")),
    Sketcher.Constraint("DistanceY", 0, 2, 0, 1, Q("6 mm")),
    Sketcher.Constraint("DistanceX", 0, 2, -1, 1, Q("18 mm")),
    Sketcher.Constraint("DistanceY", 0, 2, -1, 1, Q("23.5 mm")),
])
pocket11 = body.newObject("PartDesign::Pocket", "Pocket010")
pocket11.Profile = sketch16
pocket11.Type = "ThroughAll"
pocket11.Reversed = True
doc.recompute()

fillet2 = body.newObject("PartDesign::Fillet", "Fillet001")
fillet2.Base = (pocket11, edges_at(pocket11, [(-24, -56, -26.5), (-24, -23.5, -31.5), (-28, -23.5, -26.5)]))
fillet2.Radius = 3

doc.recompute()
